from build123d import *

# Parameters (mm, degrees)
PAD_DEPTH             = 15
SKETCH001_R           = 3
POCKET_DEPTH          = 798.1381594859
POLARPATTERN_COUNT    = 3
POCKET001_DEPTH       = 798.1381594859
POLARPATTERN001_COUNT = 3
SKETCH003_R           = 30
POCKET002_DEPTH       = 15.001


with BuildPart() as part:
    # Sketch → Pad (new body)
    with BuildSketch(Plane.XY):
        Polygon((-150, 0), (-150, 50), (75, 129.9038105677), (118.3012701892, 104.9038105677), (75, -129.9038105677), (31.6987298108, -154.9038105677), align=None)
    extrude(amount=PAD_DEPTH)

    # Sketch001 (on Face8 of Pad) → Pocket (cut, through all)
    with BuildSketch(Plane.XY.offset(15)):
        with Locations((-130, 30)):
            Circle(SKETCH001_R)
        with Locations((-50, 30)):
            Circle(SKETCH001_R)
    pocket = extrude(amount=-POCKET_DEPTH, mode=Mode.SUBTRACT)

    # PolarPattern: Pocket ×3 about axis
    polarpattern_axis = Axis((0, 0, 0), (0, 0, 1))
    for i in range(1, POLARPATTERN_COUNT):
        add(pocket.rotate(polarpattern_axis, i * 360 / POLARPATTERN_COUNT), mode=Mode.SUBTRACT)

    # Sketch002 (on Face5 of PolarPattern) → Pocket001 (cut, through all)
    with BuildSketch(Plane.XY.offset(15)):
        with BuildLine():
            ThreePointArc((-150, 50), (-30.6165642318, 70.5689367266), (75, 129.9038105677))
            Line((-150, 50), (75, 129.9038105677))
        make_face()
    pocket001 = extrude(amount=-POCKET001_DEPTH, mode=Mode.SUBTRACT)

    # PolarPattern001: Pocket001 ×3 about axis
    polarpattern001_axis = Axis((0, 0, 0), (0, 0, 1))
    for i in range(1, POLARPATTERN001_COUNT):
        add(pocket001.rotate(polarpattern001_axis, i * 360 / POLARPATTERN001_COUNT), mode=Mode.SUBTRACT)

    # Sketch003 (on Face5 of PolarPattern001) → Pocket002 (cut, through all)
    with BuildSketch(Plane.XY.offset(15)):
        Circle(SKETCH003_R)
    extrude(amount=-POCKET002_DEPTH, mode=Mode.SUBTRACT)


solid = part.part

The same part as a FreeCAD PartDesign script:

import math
import FreeCAD as App
import Part
import Sketcher

V = App.Vector
Q = App.Units.Quantity

doc = App.newDocument("Part")
body = doc.addObject("PartDesign::Body", "Body")

sketch1 = doc.addObject("Sketcher::SketchObject", "Sketch")
body.addObject(sketch1)
sketch1.AttachmentSupport = (doc.XY_Plane, [""])
sketch1.MapMode = "FlatFace"
sketch1.addGeometry([
    Part.LineSegment(V(-150, 50, 0), V(-150, 0, 0)),
    Part.LineSegment(V(-150, 0, 0), V(32, -155, 0)),
    Part.LineSegment(V(32, -155, 0), V(75, -130, 0)),
    Part.LineSegment(V(75, -130, 0), V(118, 105, 0)),
    Part.LineSegment(V(118, 105, 0), V(75, 130, 0)),
    Part.LineSegment(V(75, 130, 0), V(-150, 50, 0)),
], False)
sketch1.addConstraint([
    Sketcher.Constraint("Coincident", 0, 2, 1, 1),
    Sketcher.Constraint("Coincident", 1, 2, 2, 1),
    Sketcher.Constraint("Coincident", 2, 2, 3, 1),
    Sketcher.Constraint("Coincident", 3, 2, 4, 1),
    Sketcher.Constraint("Coincident", 4, 2, 5, 1),
    Sketcher.Constraint("Coincident", 5, 2, 0, 1),
    Sketcher.Constraint("Vertical", 0),
    Sketcher.Constraint("Symmetric", 2, 2, 4, 2, -1),
    Sketcher.Constraint("PointOnObject", 0, 2, -1),
    Sketcher.Constraint("Equal", 1, 3),
    Sketcher.Constraint("Equal", 2, 4),
    Sketcher.Constraint("Equal", 3, 5),
    Sketcher.Constraint("DistanceY", 0, 2, 0, 1, 50.0),
    Sketcher.Constraint("Angle", 2, Q("30 deg")),
    Sketcher.Constraint("Angle", 4, Q("150 deg")),
    Sketcher.Constraint("DistanceX", 0, 2, -1, 1, 150.0),
    Sketcher.Constraint("DistanceX", -1, 1, 2, 2, 75.0),
])
pad1 = doc.addObject("PartDesign::Pad", "Pad")
body.addObject(pad1)
pad1.Profile = sketch1
pad1.Length = 15

sketch2 = doc.addObject("Sketcher::SketchObject", "Sketch001")
body.addObject(sketch2)
sketch2.AttachmentSupport = (doc.XY_Plane, [""])
sketch2.MapMode = "FlatFace"
sketch2.AttachmentOffset = App.Placement(V(0, 0, 15), App.Rotation())
sketch2.addGeometry([
    Part.Circle(V(-130, 30, 0), V(0, 0, 1), 3),
    Part.Circle(V(-50, 30, 0), V(0, 0, 1), 3),
], False)
sketch2.addConstraint([
    Sketcher.Constraint("Equal", 0, 1),
    Sketcher.Constraint("Horizontal", 0, 3, 1, 3),
    Sketcher.Constraint("Diameter", 0, 6.0),
    Sketcher.Constraint("DistanceX", 0, 3, -1, 1, 130.0),
    Sketcher.Constraint("DistanceY", -1, 1, 0, 3, 30.0),
    Sketcher.Constraint("DistanceX", 1, 3, -1, 1, 50.0),
])
pocket1 = doc.addObject("PartDesign::Pocket", "Pocket")
body.addObject(pocket1)
pocket1.Profile = sketch2
pocket1.Type = "ThroughAll"
doc.recompute()

polarpattern = doc.addObject("PartDesign::PolarPattern", "PolarPattern")
body.addObject(polarpattern)
polarpattern.Originals = [pocket1]
polarpattern.Axis = (doc.Z_Axis, [""])
polarpattern.Angle = 360
polarpattern.Occurrences = 3
body.Tip = polarpattern

sketch3 = doc.addObject("Sketcher::SketchObject", "Sketch002")
body.addObject(sketch3)
sketch3.AttachmentSupport = (doc.XY_Plane, [""])
sketch3.MapMode = "FlatFace"
sketch3.AttachmentOffset = App.Placement(V(0, 0, 15), App.Rotation())
sketch3.addGeometry([
    Part.ArcOfCircle(Part.Circle(V(-150, 407, 0), V(0, 0, 1), 357), math.radians(-90), math.radians(-51)),
    Part.LineSegment(V(75, 130, 0), V(-150, 50, 0)),
], False)
sketch3.addConstraint([
    Sketcher.Constraint("Coincident", 0, 1, 1, 2),
    Sketcher.Constraint("Coincident", 1, 1, 0, 2),
    Sketcher.Constraint("DistanceX", 0, 3, -1, 1, 150.0),
    Sketcher.Constraint("DistanceX", 0, 1, -1, 1, 150.0),
    Sketcher.Constraint("DistanceY", -1, 1, 0, 1, 50.0),
    Sketcher.Constraint("DistanceX", -1, 1, 1, 1, 75.0),
    Sketcher.Constraint("Radius", 0, 356.73905),
])
pocket2 = doc.addObject("PartDesign::Pocket", "Pocket001")
body.addObject(pocket2)
pocket2.Profile = sketch3
pocket2.Type = "ThroughAll"
doc.recompute()

polarpattern2 = doc.addObject("PartDesign::PolarPattern", "PolarPattern001")
body.addObject(polarpattern2)
polarpattern2.Originals = [pocket2]
polarpattern2.Axis = (doc.Z_Axis, [""])
polarpattern2.Angle = 360
polarpattern2.Occurrences = 3
body.Tip = polarpattern2

sketch4 = doc.addObject("Sketcher::SketchObject", "Sketch003")
body.addObject(sketch4)
sketch4.AttachmentSupport = (doc.XY_Plane, [""])
sketch4.MapMode = "FlatFace"
sketch4.AttachmentOffset = App.Placement(V(0, 0, 15), App.Rotation())
sketch4.addGeometry(Part.Circle(V(0, 0, 0), V(0, 0, 1), 30), False)
sketch4.addConstraint([
    Sketcher.Constraint("Coincident", 0, 3, -1, 1),
    Sketcher.Constraint("Diameter", 0, 60.0),
])
pocket3 = doc.addObject("PartDesign::Pocket", "Pocket002")
body.addObject(pocket3)
pocket3.Profile = sketch4
pocket3.Type = "ThroughAll"

doc.recompute()
